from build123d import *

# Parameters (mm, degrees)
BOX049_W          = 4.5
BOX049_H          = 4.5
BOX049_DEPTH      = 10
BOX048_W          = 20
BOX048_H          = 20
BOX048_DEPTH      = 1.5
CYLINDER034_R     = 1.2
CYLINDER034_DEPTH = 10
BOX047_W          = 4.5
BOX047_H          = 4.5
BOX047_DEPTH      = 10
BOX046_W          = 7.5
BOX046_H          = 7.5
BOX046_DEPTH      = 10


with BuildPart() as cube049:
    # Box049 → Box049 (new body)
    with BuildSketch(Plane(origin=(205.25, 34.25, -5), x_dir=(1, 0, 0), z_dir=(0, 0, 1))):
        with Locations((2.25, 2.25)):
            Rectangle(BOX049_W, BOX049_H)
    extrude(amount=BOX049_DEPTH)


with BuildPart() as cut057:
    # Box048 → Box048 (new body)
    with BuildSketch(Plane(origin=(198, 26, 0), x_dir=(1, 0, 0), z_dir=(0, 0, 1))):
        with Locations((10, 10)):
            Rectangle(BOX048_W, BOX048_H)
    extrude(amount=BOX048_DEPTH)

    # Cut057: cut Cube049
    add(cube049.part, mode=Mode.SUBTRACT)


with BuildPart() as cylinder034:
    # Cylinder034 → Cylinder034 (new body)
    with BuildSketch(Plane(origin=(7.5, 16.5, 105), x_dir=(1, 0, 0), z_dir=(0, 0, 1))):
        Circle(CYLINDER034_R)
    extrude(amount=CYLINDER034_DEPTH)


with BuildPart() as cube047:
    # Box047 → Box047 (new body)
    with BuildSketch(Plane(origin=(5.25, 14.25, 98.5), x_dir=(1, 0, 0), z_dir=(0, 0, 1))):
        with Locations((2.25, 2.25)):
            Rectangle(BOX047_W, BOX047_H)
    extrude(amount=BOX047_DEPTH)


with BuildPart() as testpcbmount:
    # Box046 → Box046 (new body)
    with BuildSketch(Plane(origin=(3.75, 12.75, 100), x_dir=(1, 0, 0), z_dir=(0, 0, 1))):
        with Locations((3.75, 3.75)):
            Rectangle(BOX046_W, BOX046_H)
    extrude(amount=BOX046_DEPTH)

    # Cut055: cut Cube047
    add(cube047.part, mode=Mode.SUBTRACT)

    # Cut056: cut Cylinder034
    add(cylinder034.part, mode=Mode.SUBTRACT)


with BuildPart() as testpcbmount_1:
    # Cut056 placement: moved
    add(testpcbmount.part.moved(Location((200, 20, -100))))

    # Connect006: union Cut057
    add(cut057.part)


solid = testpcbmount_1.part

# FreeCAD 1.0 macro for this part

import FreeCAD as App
import Part
import Sketcher

doc = App.newDocument("Part")
body = doc.addObject("PartDesign::Body", "Body")

# Sketch on XY plane
sketch1 = body.newObject("Sketcher::SketchObject", "Sketch")
sketch1.AttachmentSupport = (doc.getObject("XY_Plane"), [""])
sketch1.MapMode = "FlatFace"
sketch1.AttachmentOffset = App.Placement(App.Vector(0, 0, -5), App.Rotation())
sketch1.addGeometry([
    Part.LineSegment(App.Vector(205.2, 38.8, 0), App.Vector(205.2, 34.2, 0)),
    Part.LineSegment(App.Vector(205.2, 34.2, 0), App.Vector(209.8, 34.2, 0)),
    Part.LineSegment(App.Vector(209.8, 34.2, 0), App.Vector(209.8, 38.8, 0)),
    Part.LineSegment(App.Vector(209.8, 38.8, 0), App.Vector(205.2, 38.8, 0)),
], False)
sketch1.addConstraint([
    Sketcher.Constraint("Coincident", 0, 2, 1, 1),
    Sketcher.Constraint("Coincident", 1, 2, 2, 1),
    Sketcher.Constraint("Coincident", 2, 2, 3, 1),
    Sketcher.Constraint("Coincident", 3, 2, 0, 1),
    Sketcher.Constraint("Vertical", 0),
    Sketcher.Constraint("Horizontal", 1),
    Sketcher.Constraint("Vertical", 2),
    Sketcher.Constraint("Horizontal", 3),
    Sketcher.Constraint("Equal", 3, 0),
    Sketcher.Constraint("DistanceX", 1, 1, 1, 2, 4.5),
    Sketcher.Constraint("DistanceX", -1, 1, 0, 2, 205.25),
    Sketcher.Constraint("DistanceY", -1, 1, 0, 2, 34.25),
])
pad1 = body.newObject("PartDesign::Pad", "Pad")
pad1.Profile = sketch1
pad1.Length = 10
body2 = doc.addObject("PartDesign::Body", "Body001")

# Sketch on XY plane
sketch2 = body2.newObject("Sketcher::SketchObject", "Sketch001")
sketch2.AttachmentSupport = (doc.getObject("XY_Plane001"), [""])
sketch2.MapMode = "FlatFace"
sketch2.addGeometry([
    Part.LineSegment(App.Vector(198, 46, 0), App.Vector(198, 26, 0)),
    Part.LineSegment(App.Vector(198, 26, 0), App.Vector(218, 26, 0)),
    Part.LineSegment(App.Vector(218, 26, 0), App.Vector(218, 46, 0)),
    Part.LineSegment(App.Vector(218, 46, 0), App.Vector(198, 46, 0)),
], False)
sketch2.addConstraint([
    Sketcher.Constraint("Coincident", 0, 2, 1, 1),
    Sketcher.Constraint("Coincident", 1, 2, 2, 1),
    Sketcher.Constraint("Coincident", 2, 2, 3, 1),
    Sketcher.Constraint("Coincident", 3, 2, 0, 1),
    Sketcher.Constraint("Vertical", 0),
    Sketcher.Constraint("Horizontal", 1),
    Sketcher.Constraint("Vertical", 2),
    Sketcher.Constraint("Horizontal", 3),
    Sketcher.Constraint("Equal", 3, 0),
    Sketcher.Constraint("DistanceX", 1, 1, 1, 2, 20.0),
    Sketcher.Constraint("DistanceX", -1, 1, 0, 2, 198.0),
    Sketcher.Constraint("DistanceY", -1, 1, 0, 2, 26.0),
])
pad2 = body2.newObject("PartDesign::Pad", "Pad001")
pad2.Profile = sketch2
pad2.Length = 1.5
doc.recompute()

boolean = body2.newObject("PartDesign::Boolean", "Boolean")
boolean.Type = "Cut"
boolean.addObjects([body])
body3 = doc.addObject("PartDesign::Body", "Body002")

# Sketch on XY plane
sketch3 = body3.newObject("Sketcher::SketchObject", "Sketch002")
sketch3.AttachmentSupport = (doc.getObject("XY_Plane002"), [""])
sketch3.MapMode = "FlatFace"
sketch3.AttachmentOffset = App.Placement(App.Vector(0, 0, 105), App.Rotation())
sketch3.addGeometry(Part.Circle(App.Vector(7.5, 16.5, 0), App.Vector(0, 0, 1), 1.2), False)
sketch3.addConstraint([
    Sketcher.Constraint("Diameter", 0, 2.4),
    Sketcher.Constraint("DistanceX", -1, 1, 0, 3, 7.5),
    Sketcher.Constraint("DistanceY", -1, 1, 0, 3, 16.5),
])
pad3 = body3.newObject("PartDesign::Pad", "Pad002")
pad3.Profile = sketch3
pad3.Length = 10
body4 = doc.addObject("PartDesign::Body", "Body003")

# Sketch on XY plane
sketch4 = body4.newObject("Sketcher::SketchObject", "Sketch003")
sketch4.AttachmentSupport = (doc.getObject("XY_Plane003"), [""])
sketch4.MapMode = "FlatFace"
sketch4.AttachmentOffset = App.Placement(App.Vector(0, 0, 98.5), App.Rotation())
sketch4.addGeometry([
    Part.LineSegment(App.Vector(5.2, 18.8, 0), App.Vector(5.2, 14.2, 0)),
    Part.LineSegment(App.Vector(5.2, 14.2, 0), App.Vector(9.8, 14.2, 0)),
    Part.LineSegment(App.Vector(9.8, 14.2, 0), App.Vector(9.8, 18.8, 0)),
    Part.LineSegment(App.Vector(9.8, 18.8, 0), App.Vector(5.2, 18.8, 0)),
], False)
sketch4.addConstraint([
    Sketcher.Constraint("Coincident", 0, 2, 1, 1),
    Sketcher.Constraint("Coincident", 1, 2, 2, 1),
    Sketcher.Constraint("Coincident", 2, 2, 3, 1),
    Sketcher.Constraint("Coincident", 3, 2, 0, 1),
    Sketcher.Constraint("Vertical", 0),
    Sketcher.Constraint("Horizontal", 1),
    Sketcher.Constraint("Vertical", 2),
    Sketcher.Constraint("Horizontal", 3),
    Sketcher.Constraint("Equal", 3, 0),
    Sketcher.Constraint("DistanceX", 1, 1, 1, 2, 4.5),
    Sketcher.Constraint("DistanceX", -1, 1, 0, 2, 5.25),
    Sketcher.Constraint("DistanceY", -1, 1, 0, 2, 14.25),
])
pad4 = body4.newObject("PartDesign::Pad", "Pad003")
pad4.Profile = sketch4
pad4.Length = 10
body5 = doc.addObject("PartDesign::Body", "Body004")

# Sketch on XY plane
sketch5 = body5.newObject("Sketcher::SketchObject", "Sketch004")
sketch5.AttachmentSupport = (doc.getObject("XY_Plane004"), [""])
sketch5.MapMode = "FlatFace"
sketch5.AttachmentOffset = App.Placement(App.Vector(0, 0, 100), App.Rotation())
sketch5.addGeometry([
    Part.LineSegment(App.Vector(4, 20, 0), App.Vector(4, 13, 0)),
    Part.LineSegment(App.Vector(4, 13, 0), App.Vector(11, 13, 0)),
    Part.LineSegment(App.Vector(11, 13, 0), App.Vector(11, 20, 0)),
    Part.LineSegment(App.Vector(11, 20, 0), App.Vector(4, 20, 0)),
], False)
sketch5.addConstraint([
    Sketcher.Constraint("Coincident", 0, 2, 1, 1),
    Sketcher.Constraint("Coincident", 1, 2, 2, 1),
    Sketcher.Constraint("Coincident", 2, 2, 3, 1),
    Sketcher.Constraint("Coincident", 3, 2, 0, 1),
    Sketcher.Constraint("Vertical", 0),
    Sketcher.Constraint("Horizontal", 1),
    Sketcher.Constraint("Vertical", 2),
    Sketcher.Constraint("Horizontal", 3),
    Sketcher.Constraint("Equal", 3, 0),
    Sketcher.Constraint("DistanceX", 1, 1, 1, 2, 7.5),
    Sketcher.Constraint("DistanceX", -1, 1, 0, 2, 3.75),
    Sketcher.Constraint("DistanceY", -1, 1, 0, 2, 12.75),
])
pad5 = body5.newObject("PartDesign::Pad", "Pad004")
pad5.Profile = sketch5
pad5.Length = 10
doc.recompute()

boolean2 = body5.newObject("PartDesign::Boolean", "Boolean001")
boolean2.Type = "Cut"
boolean2.addObjects([body4])
doc.recompute()

boolean3 = body5.newObject("PartDesign::Boolean", "Boolean002")
boolean3.Type = "Cut"
boolean3.addObjects([body3])
body6 = doc.addObject("PartDesign::Body", "Body005")
doc.recompute()

body5.Placement = App.Placement(App.Vector(200, 20, -100), App.Rotation(App.Vector(0, 0, 1), 0))
boolean4 = body6.newObject("PartDesign::Boolean", "Boolean003")
boolean4.Type = "Fuse"
boolean4.addObjects([body5])
doc.recompute()

boolean5 = body6.newObject("PartDesign::Boolean", "Boolean004")
boolean5.Type = "Fuse"
boolean5.addObjects([body2])

doc.recompute()
